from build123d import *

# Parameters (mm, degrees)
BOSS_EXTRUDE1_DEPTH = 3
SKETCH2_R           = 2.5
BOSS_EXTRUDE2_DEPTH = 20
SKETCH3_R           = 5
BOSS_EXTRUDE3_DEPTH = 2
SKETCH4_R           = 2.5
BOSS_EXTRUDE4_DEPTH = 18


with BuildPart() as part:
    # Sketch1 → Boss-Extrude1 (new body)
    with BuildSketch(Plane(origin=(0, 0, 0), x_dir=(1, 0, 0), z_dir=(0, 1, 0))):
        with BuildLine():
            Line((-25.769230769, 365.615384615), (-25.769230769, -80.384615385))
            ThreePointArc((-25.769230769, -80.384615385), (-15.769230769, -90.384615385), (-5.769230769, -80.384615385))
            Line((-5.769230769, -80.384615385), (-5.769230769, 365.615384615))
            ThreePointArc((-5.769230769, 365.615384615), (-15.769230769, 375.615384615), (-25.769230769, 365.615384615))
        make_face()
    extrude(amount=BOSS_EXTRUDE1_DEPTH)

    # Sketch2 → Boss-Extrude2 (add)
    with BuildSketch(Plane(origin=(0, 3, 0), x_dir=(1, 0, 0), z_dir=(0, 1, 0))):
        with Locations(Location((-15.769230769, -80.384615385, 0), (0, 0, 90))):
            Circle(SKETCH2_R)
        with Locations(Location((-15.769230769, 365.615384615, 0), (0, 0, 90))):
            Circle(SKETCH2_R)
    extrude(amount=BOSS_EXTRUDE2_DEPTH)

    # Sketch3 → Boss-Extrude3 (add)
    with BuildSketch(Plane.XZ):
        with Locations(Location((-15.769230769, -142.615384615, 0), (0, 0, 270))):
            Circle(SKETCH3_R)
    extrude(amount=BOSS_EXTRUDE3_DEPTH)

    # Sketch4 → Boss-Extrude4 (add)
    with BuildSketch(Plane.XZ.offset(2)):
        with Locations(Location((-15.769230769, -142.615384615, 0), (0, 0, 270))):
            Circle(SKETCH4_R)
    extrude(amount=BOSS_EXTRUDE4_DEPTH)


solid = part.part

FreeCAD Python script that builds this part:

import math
import FreeCAD as App
import Part
import Sketcher

doc = App.newDocument("Part")
body = doc.addObject("PartDesign::Body", "Body")

# Sketch on XZ plane
sketch1 = body.newObject("Sketcher::SketchObject", "Sketch")
sketch1.AttachmentSupport = (doc.getObject("XZ_Plane"), [""])
sketch1.MapMode = "FlatFace"
sketch1.addGeometry([
    Part.LineSegment(App.Vector(-26, -366, 0), App.Vector(-26, 80, 0)),
    Part.ArcOfCircle(Part.Circle(App.Vector(-16, 80, 0), App.Vector(0, 0, 1), 10), math.radians(0), math.radians(180)),
    Part.LineSegment(App.Vector(-6, 80, 0), App.Vector(-6, -366, 0)),
    Part.ArcOfCircle(Part.Circle(App.Vector(-16, -366, 0), App.Vector(0, 0, 1), 10), math.radians(180), math.radians(360)),
], False)
sketch1.addConstraint([
    Sketcher.Constraint("Tangent", 0, 2, 1, 2),
    Sketcher.Constraint("Tangent", 1, 1, 2, 1),
    Sketcher.Constraint("Tangent", 2, 2, 3, 2),
    Sketcher.Constraint("Tangent", 3, 1, 0, 1),
    Sketcher.Constraint("Vertical", 0),
    Sketcher.Constraint("Vertical", 2),
    Sketcher.Constraint("Radius", 1, 10.0),
    Sketcher.Constraint("DistanceY", 0, 1, 0, 2, 446.0),
    Sketcher.Constraint("DistanceX", 1, 3, -1, 1, 15.769231),
    Sketcher.Constraint("DistanceY", -1, 1, 1, 3, 80.384615),
])
pad1 = body.newObject("PartDesign::Pad", "Pad")
pad1.Profile = sketch1
pad1.Length = 3
pad1.Reversed = True

# Sketch on XZ plane
sketch2 = body.newObject("Sketcher::SketchObject", "Sketch001")
sketch2.AttachmentSupport = (doc.getObject("XZ_Plane"), [""])
sketch2.MapMode = "FlatFace"
sketch2.AttachmentOffset = App.Placement(App.Vector(0, 0, -3), App.Rotation())
sketch2.addGeometry([
    Part.Circle(App.Vector(-15.8, 80.4, 0), App.Vector(0, 0, 1), 2.5),
    Part.Circle(App.Vector(-15.8, -365.6, 0), App.Vector(0, 0, 1), 2.5),
], False)
sketch2.addConstraint([
    Sketcher.Constraint("Equal", 0, 1),
    Sketcher.Constraint("Vertical", 0, 3, 1, 3),
    Sketcher.Constraint("Diameter", 0, 5.0),
    Sketcher.Constraint("DistanceY", 1, 3, 0, 3, 446.0),
    Sketcher.Constraint("DistanceX", 0, 3, -1, 1, 15.769231),
    Sketcher.Constraint("DistanceY", -1, 1, 0, 3, 80.384615),
])
pad2 = body.newObject("PartDesign::Pad", "Pad001")
pad2.Profile = sketch2
pad2.Length = 20
pad2.Reversed = True

# Sketch on XZ plane
sketch3 = body.newObject("Sketcher::SketchObject", "Sketch002")
sketch3.AttachmentSupport = (doc.getObject("XZ_Plane"), [""])
sketch3.MapMode = "FlatFace"
sketch3.addGeometry(Part.Circle(App.Vector(-16, -143, 0), App.Vector(0, 0, 1), 5), False)
sketch3.addConstraint([
    Sketcher.Constraint("Diameter", 0, 10.0),
    Sketcher.Constraint("DistanceX", 0, 3, -1, 1, 15.769231),
    Sketcher.Constraint("DistanceY", 0, 3, -1, 1, 142.615385),
])
pad3 = body.newObject("PartDesign::Pad", "Pad002")
pad3.Profile = sketch3
pad3.Length = 2

# Sketch on XZ plane
sketch4 = body.newObject("Sketcher::SketchObject", "Sketch003")
sketch4.AttachmentSupport = (doc.getObject("XZ_Plane"), [""])
sketch4.MapMode = "FlatFace"
sketch4.AttachmentOffset = App.Placement(App.Vector(0, 0, 2), App.Rotation())
sketch4.addGeometry(Part.Circle(App.Vector(-15.8, -142.6, 0), App.Vector(0, 0, 1), 2.5), False)
sketch4.addConstraint([
    Sketcher.Constraint("Diameter", 0, 5.0),
    Sketcher.Constraint("DistanceX", 0, 3, -1, 1, 15.769231),
    Sketcher.Constraint("DistanceY", 0, 3, -1, 1, 142.615385),
])
pad4 = body.newObject("PartDesign::Pad", "Pad003")
pad4.Profile = sketch4
pad4.Length = 18

doc.recompute()
